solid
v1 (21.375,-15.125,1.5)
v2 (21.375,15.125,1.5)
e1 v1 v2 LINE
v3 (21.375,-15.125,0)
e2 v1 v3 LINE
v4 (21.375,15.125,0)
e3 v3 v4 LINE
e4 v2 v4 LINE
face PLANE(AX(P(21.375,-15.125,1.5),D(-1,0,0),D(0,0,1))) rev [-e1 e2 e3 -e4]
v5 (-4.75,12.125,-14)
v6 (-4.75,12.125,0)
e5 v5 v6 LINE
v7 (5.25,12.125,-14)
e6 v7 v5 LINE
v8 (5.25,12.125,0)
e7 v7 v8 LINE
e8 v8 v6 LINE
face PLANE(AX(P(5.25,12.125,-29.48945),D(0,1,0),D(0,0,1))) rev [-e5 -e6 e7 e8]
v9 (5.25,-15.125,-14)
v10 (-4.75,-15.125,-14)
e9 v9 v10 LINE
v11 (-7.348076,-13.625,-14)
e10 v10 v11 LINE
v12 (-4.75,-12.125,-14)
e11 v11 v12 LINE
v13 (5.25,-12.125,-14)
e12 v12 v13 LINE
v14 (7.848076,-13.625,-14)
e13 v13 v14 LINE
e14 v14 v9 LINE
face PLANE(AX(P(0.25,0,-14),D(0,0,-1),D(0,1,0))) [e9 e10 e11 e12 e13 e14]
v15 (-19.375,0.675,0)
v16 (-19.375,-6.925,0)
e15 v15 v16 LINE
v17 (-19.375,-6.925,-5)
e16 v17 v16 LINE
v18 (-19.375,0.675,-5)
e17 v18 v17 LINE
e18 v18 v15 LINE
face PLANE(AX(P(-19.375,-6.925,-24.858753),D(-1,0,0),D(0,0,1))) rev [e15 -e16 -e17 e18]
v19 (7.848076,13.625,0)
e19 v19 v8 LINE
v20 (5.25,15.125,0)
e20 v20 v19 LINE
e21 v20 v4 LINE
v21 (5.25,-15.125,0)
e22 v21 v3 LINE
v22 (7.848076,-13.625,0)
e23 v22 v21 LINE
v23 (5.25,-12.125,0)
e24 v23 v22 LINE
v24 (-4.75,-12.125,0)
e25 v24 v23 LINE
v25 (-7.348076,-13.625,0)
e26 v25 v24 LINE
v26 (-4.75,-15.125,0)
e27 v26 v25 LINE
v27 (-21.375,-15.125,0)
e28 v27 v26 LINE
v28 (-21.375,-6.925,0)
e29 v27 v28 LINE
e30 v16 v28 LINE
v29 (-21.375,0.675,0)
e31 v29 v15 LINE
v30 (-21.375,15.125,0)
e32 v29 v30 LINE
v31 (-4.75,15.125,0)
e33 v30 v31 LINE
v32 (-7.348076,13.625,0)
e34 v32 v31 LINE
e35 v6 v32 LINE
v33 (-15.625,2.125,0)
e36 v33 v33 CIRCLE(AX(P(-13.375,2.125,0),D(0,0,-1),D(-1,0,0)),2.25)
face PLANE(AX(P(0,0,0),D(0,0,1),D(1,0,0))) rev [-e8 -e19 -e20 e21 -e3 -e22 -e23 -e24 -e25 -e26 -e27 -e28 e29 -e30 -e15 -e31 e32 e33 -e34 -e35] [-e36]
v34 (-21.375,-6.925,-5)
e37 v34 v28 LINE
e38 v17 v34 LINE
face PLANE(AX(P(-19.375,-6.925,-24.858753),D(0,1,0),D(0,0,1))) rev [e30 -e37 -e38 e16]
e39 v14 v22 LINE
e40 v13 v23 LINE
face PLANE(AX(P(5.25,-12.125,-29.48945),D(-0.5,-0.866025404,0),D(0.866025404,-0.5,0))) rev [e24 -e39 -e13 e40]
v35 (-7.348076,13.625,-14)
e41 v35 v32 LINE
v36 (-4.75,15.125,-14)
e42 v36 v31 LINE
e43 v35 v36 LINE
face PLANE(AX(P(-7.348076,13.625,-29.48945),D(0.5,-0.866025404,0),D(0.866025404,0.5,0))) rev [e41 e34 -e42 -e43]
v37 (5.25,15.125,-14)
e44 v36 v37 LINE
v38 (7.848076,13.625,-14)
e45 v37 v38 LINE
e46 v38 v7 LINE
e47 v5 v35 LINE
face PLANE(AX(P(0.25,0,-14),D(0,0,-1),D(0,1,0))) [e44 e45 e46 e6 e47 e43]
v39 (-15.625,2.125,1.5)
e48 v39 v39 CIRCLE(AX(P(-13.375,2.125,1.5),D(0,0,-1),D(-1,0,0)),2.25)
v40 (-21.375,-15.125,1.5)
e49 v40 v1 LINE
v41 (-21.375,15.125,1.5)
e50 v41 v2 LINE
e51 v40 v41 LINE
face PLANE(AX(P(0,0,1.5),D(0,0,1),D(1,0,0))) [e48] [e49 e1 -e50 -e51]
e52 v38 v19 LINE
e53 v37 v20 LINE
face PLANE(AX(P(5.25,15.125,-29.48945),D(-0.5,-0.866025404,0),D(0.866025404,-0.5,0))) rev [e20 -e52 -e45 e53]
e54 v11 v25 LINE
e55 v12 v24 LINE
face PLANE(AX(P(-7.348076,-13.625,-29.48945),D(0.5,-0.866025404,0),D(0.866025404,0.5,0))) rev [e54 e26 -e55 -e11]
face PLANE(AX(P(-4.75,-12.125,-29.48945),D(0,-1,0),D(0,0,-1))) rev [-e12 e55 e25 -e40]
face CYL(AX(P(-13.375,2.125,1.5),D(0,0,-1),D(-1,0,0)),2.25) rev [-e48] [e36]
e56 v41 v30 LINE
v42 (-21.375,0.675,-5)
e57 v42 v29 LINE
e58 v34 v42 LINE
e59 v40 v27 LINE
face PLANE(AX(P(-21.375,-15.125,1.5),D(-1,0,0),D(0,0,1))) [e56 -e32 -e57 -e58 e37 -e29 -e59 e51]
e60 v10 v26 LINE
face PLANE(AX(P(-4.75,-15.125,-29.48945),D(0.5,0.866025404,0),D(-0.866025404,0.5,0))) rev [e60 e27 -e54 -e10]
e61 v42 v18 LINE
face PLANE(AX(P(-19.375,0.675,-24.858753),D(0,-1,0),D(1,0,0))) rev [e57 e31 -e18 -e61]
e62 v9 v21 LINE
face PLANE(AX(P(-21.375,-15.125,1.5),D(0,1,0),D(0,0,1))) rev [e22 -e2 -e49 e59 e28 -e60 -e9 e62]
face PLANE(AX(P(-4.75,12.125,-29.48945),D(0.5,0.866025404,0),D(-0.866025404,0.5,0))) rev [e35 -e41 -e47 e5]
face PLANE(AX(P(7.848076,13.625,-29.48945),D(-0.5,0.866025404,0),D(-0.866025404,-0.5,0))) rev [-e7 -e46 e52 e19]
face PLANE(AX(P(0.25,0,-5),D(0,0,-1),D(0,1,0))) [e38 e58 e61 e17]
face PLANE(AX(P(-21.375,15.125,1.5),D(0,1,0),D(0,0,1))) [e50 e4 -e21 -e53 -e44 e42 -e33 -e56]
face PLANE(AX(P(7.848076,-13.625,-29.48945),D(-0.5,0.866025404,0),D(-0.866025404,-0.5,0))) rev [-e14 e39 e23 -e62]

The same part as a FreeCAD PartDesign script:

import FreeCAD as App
import Part
import Sketcher
from FreeCAD import Vector
Q = App.Units.Quantity


def add_polygon(sketch, points):
    """Adds a closed chain of lines whose ends are joined by coincident constraints."""
    first, n = sketch.GeometryCount, len(points)
    for a, b in zip(points, points[1:] + points[:1]):
        sketch.addGeometry(Part.LineSegment(App.Vector(*a, 0), App.Vector(*b, 0)), False)
    for i in range(n):
        sketch.addConstraint(Sketcher.Constraint("Coincident", first + i, 2, first + (i + 1) % n, 1))

doc = App.newDocument("Part")
params = doc.addObject("Spreadsheet::Sheet", "Params")
for row, (alias, value) in enumerate([
    ("sketch1_width", "42.75 mm"),
    ("sketch1_height", "30.25 mm"),
    ("pad1_length", "1.5 mm"),
    ("sketch2_width", "10 mm"),
    ("sketch2_length", "3 mm"),
    ("pad2_length", "14 mm"),
    ("sketch3_width", "2 mm"),
    ("sketch3_height", "7.6 mm"),
    ("pad3_length", "5 mm"),
    ("sketch4_diameter", "4.5 mm"),
], start=1):
    params.set(f"A{row}", alias)
    params.set(f"B{row}", "=" + value)
    params.setAlias(f"B{row}", alias)

body = doc.addObject("PartDesign::Body", "Body")

# Sketch on XY plane
sketch1 = body.newObject("Sketcher::SketchObject", "Sketch")
sketch1.AttachmentSupport = (doc.getObject("XY_Plane"), [""])
sketch1.MapMode = "FlatFace"
add_polygon(sketch1, [(-21, 15), (-21, -15), (21, -15), (21, 15)])  # lines 0-3
sketch1.addConstraint(Sketcher.Constraint("Vertical", 0))
sketch1.addConstraint(Sketcher.Constraint("Horizontal", 1))
sketch1.addConstraint(Sketcher.Constraint("Vertical", 2))
sketch1.addConstraint(Sketcher.Constraint("Horizontal", 3))
sketch1.addConstraint(Sketcher.Constraint("Symmetric", 0, 2, 2, 2, -1, 1))
sketch1.addConstraint(Sketcher.Constraint("DistanceX", 1, 1, 1, 2, Q("42.75 mm")))
sketch1.addConstraint(Sketcher.Constraint("DistanceY", 0, 2, 0, 1, Q("30.25 mm")))
sketch1.setExpression("Constraints[9]", "Params.sketch1_width")
sketch1.setExpression("Constraints[10]", "Params.sketch1_height")
pad1 = body.newObject("PartDesign::Pad", "Pad")
pad1.Profile = sketch1
pad1.setExpression("Length", "Params.pad1_length")

# Sketch on XY plane
sketch2 = body.newObject("Sketcher::SketchObject", "Sketch001")
sketch2.AttachmentSupport = (doc.getObject("XY_Plane"), [""])
sketch2.MapMode = "FlatFace"
add_polygon(sketch2, [(-7.3, -13.6), (-4.8, -12.1), (5.2, -12.1), (7.8, -13.6), (5.2, -15.1), (-4.8, -15.1)])  # lines 0-5
add_polygon(sketch2, [(7.8, 13.6), (5.2, 12.1), (-4.8, 12.1), (-7.3, 13.6), (-4.8, 15.1), (5.2, 15.1)])  # lines 6-11
sketch2.addConstraint(Sketcher.Constraint("Horizontal", 1))
sketch2.addConstraint(Sketcher.Constraint("Horizontal", 4))
sketch2.addConstraint(Sketcher.Constraint("Horizontal", 7))
sketch2.addConstraint(Sketcher.Constraint("Horizontal", 10))
sketch2.addConstraint(Sketcher.Constraint("Symmetric", 1, 2, 6, 2, -1))
sketch2.addConstraint(Sketcher.Constraint("Symmetric", 5, 2, 8, 2, -1))
sketch2.addConstraint(Sketcher.Constraint("Symmetric", 4, 2, 9, 2, -1))
sketch2.addConstraint(Sketcher.Constraint("Symmetric", 2, 2, 11, 2, -1))
sketch2.addConstraint(Sketcher.Constraint("Parallel", 0, 3))
sketch2.addConstraint(Sketcher.Constraint("Parallel", 2, 5))
sketch2.addConstraint(Sketcher.Constraint("Parallel", 3, 6))
sketch2.addConstraint(Sketcher.Constraint("Parallel", 5, 8))
sketch2.addConstraint(Sketcher.Constraint("Parallel", 8, 11))
sketch2.addConstraint(Sketcher.Constraint("Horizontal", 2, 2, 5, 2))
sketch2.addConstraint(Sketcher.Constraint("Vertical", 1, 2, 3, 2))
sketch2.addConstraint(Sketcher.Constraint("DistanceX", 1, 1, 1, 2, Q("10 mm")))
sketch2.addConstraint(Sketcher.Constraint("Angle", 0, Q("30 deg")))
sketch2.addConstraint(Sketcher.Constraint("Distance", 0, Q("3 mm")))
sketch2.addConstraint(Sketcher.Constraint("DistanceX", 0, 2, -1, 1, Q("4.75 mm")))
sketch2.addConstraint(Sketcher.Constraint("DistanceY", 1, 2, 6, 2, Q("24.25 mm")))
sketch2.setExpression("Constraints[27]", "Params.sketch2_width")
sketch2.setExpression("Constraints[29]", "Params.sketch2_length")
pad2 = body.newObject("PartDesign::Pad", "Pad001")
pad2.Profile = sketch2
pad2.setExpression("Length", "Params.pad2_length")
pad2.Reversed = True

# Sketch on XY plane
sketch3 = body.newObject("Sketcher::SketchObject", "Sketch002")
sketch3.AttachmentSupport = (doc.getObject("XY_Plane"), [""])
sketch3.MapMode = "FlatFace"
add_polygon(sketch3, [(-19.4, 0.7), (-19.4, -6.9), (-21.4, -6.9), (-21.4, 0.7)])  # lines 0-3
sketch3.addConstraint(Sketcher.Constraint("Vertical", 0))
sketch3.addConstraint(Sketcher.Constraint("Horizontal", 1))
sketch3.addConstraint(Sketcher.Constraint("Vertical", 2))
sketch3.addConstraint(Sketcher.Constraint("Horizontal", 3))
sketch3.addConstraint(Sketcher.Constraint("DistanceX", 1, 2, 1, 1, Q("2 mm")))
sketch3.addConstraint(Sketcher.Constraint("DistanceY", 0, 2, 0, 1, Q("7.6 mm")))
sketch3.addConstraint(Sketcher.Constraint("DistanceX", 0, 2, -1, 1, Q("19.375 mm")))
sketch3.addConstraint(Sketcher.Constraint("DistanceY", 0, 2, -1, 1, Q("6.925 mm")))
sketch3.setExpression("Constraints[8]", "Params.sketch3_width")
sketch3.setExpression("Constraints[9]", "Params.sketch3_height")
pad3 = body.newObject("PartDesign::Pad", "Pad002")
pad3.Profile = sketch3
pad3.setExpression("Length", "Params.pad3_length")
pad3.Reversed = True

# Sketch on XY plane
sketch4 = body.newObject("Sketcher::SketchObject", "Sketch003")
sketch4.AttachmentSupport = (doc.getObject("XY_Plane"), [""])
sketch4.MapMode = "FlatFace"
sketch4.addGeometry(Part.Circle(Vector(-13.4, 2.1, 0), Vector(0, 0, 1), 2.2), False)
sketch4.addConstraint(Sketcher.Constraint("Diameter", 0, Q("4.5 mm")))
sketch4.addConstraint(Sketcher.Constraint("DistanceX", 0, 3, -1, 1, Q("13.375 mm")))
sketch4.addConstraint(Sketcher.Constraint("DistanceY", -1, 1, 0, 3, Q("2.125 mm")))
sketch4.setExpression("Constraints[0]", "Params.sketch4_diameter")
pocket1 = body.newObject("PartDesign::Pocket", "Pocket")
pocket1.Profile = sketch4
pocket1.Type = "ThroughAll"
pocket1.Reversed = True

doc.recompute()
